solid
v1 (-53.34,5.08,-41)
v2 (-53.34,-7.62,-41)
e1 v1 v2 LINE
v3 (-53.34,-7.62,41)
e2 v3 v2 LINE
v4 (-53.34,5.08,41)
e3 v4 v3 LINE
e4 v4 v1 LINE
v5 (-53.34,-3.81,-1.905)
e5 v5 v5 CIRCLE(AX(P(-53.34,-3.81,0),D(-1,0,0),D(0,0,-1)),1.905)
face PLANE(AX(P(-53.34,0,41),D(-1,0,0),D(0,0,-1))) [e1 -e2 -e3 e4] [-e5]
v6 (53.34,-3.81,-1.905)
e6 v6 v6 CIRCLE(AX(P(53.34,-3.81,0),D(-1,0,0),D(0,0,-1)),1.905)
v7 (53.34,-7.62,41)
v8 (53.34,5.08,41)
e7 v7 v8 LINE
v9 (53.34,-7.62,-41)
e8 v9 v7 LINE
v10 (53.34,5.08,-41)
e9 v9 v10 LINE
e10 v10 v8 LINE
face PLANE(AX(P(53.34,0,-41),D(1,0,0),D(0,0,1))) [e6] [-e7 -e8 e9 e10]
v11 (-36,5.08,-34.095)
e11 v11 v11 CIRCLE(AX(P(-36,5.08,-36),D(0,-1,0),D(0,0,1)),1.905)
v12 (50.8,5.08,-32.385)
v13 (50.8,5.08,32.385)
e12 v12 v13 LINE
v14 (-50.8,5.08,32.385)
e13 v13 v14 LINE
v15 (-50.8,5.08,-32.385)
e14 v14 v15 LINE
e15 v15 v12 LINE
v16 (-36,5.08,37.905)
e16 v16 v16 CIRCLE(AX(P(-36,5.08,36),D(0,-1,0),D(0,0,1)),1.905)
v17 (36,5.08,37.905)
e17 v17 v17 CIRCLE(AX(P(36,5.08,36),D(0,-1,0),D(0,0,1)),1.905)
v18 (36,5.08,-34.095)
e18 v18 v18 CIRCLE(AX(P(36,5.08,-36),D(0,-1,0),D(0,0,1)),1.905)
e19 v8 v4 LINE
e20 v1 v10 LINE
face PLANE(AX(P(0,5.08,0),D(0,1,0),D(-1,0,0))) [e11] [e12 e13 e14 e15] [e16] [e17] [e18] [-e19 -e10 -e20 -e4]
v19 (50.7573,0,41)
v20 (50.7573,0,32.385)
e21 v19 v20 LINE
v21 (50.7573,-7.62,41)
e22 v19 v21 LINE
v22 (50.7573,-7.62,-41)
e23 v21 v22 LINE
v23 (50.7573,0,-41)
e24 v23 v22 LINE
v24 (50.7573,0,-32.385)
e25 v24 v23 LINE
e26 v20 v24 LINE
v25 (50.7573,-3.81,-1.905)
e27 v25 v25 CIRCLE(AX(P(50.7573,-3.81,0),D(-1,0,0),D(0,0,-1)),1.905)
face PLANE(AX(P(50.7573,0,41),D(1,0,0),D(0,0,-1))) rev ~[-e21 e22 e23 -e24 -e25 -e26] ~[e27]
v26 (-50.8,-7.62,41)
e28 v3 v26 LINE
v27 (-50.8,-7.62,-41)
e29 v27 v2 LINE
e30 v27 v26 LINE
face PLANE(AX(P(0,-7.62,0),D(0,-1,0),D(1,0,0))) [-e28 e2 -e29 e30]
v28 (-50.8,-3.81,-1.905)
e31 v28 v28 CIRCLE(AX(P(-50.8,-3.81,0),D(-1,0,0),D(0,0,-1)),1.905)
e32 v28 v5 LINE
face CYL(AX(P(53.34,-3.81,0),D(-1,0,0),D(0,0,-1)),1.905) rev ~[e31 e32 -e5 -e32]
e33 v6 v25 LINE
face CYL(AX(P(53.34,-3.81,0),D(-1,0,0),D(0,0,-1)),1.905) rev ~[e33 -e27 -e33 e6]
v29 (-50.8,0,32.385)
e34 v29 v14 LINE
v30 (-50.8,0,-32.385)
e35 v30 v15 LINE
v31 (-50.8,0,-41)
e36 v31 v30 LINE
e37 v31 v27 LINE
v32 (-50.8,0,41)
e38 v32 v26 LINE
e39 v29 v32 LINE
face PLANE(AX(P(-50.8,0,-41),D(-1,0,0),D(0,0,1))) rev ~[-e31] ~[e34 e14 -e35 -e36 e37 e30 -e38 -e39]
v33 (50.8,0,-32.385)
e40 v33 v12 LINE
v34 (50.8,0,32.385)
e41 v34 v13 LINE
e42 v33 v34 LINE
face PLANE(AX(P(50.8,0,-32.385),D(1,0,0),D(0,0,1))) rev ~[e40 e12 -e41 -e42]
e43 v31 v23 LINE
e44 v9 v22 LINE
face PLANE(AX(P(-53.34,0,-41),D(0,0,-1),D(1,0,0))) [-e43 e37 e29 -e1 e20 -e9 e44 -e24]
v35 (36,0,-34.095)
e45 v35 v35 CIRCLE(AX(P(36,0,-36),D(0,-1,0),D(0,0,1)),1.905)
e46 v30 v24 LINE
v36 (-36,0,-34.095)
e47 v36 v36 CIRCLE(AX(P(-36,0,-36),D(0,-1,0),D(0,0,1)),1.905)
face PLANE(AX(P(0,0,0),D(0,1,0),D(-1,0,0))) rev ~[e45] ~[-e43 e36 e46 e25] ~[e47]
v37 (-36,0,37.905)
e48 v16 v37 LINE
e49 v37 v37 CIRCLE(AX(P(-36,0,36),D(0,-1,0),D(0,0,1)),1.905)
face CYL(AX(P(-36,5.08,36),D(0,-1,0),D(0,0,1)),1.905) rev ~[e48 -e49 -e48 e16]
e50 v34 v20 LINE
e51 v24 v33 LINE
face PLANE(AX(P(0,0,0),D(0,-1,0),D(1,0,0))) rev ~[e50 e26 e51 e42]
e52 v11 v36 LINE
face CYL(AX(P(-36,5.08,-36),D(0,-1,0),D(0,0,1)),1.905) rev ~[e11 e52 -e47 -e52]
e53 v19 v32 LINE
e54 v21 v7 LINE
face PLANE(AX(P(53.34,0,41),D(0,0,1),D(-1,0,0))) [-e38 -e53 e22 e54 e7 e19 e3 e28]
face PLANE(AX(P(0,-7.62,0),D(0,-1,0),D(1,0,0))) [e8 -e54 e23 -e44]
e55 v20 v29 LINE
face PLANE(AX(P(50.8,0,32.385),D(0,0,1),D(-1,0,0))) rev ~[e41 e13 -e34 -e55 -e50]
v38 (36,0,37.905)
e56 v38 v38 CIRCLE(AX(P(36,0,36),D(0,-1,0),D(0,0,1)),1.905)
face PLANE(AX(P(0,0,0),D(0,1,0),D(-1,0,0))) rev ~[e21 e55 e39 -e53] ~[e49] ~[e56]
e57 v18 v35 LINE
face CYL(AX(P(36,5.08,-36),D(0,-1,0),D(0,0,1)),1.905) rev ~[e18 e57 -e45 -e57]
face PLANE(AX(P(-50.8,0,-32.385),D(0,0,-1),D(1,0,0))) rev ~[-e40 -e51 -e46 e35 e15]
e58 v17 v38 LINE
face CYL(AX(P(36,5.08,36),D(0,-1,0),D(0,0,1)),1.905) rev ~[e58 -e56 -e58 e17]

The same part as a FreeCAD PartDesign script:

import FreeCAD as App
import Part
import Sketcher
Q = App.Units.Quantity


def add_polygon(sketch, points):
    """Adds a closed chain of lines whose ends are joined by coincident constraints."""
    first, n = sketch.GeometryCount, len(points)
    for a, b in zip(points, points[1:] + points[:1]):
        sketch.addGeometry(Part.LineSegment(App.Vector(*a, 0), App.Vector(*b, 0)), False)
    for i in range(n):
        sketch.addConstraint(Sketcher.Constraint("Coincident", first + i, 2, first + (i + 1) % n, 1))

doc = App.newDocument("Part")
params = doc.addObject("Spreadsheet::Sheet", "Params")
for row, (alias, value) in enumerate([
    ("sketch1_width", "4 in"),
    ("sketch1_width2", "4.2 in"),
    ("sketch1_height", "2.55 in"),
    ("pad1_length", "0.2 in"),
    ("sketch2_width", "0.1 in"),
    ("pad2_length", "0.3 in"),
    ("sketch3_diameter", "0.15 in"),
    ("hole_diameter", "0.15 in"),
    ("sketch4_diameter", "0.15 in"),
    ("hole2_diameter", "0.15 in"),
], start=1):
    params.set(f"A{row}", alias)
    params.set(f"B{row}", "=" + value)
    params.setAlias(f"B{row}", alias)

body = doc.addObject("PartDesign::Body", "Body")

# Sketch on XZ plane
sketch1 = body.newObject("Sketcher::SketchObject", "Sketch")
sketch1.AttachmentSupport = (doc.getObject("XZ_Plane"), [""])
sketch1.MapMode = "FlatFace"
add_polygon(sketch1, [(-53, 41), (53, 41), (53, -41), (-53, -41)])  # lines 0-3
add_polygon(sketch1, [(51, -32), (51, 32), (-51, 32), (-51, -32)])  # lines 4-7
sketch1.addConstraint([
    Sketcher.Constraint("Horizontal", 0),
    Sketcher.Constraint("Vertical", 1),
    Sketcher.Constraint("Horizontal", 2),
    Sketcher.Constraint("Vertical", 3),
    Sketcher.Constraint("Vertical", 4),
    Sketcher.Constraint("Horizontal", 5),
    Sketcher.Constraint("Vertical", 6),
    Sketcher.Constraint("Horizontal", 7),
    Sketcher.Constraint("Symmetric", 0, 2, 2, 2, -1, 1),
    Sketcher.Constraint("Symmetric", 4, 2, 6, 2, -1, 1),
    Sketcher.Constraint("DistanceX", 5, 2, 5, 1, Q("4 in")),
    Sketcher.Constraint("DistanceX", 0, 1, 0, 2, Q("4.2 in")),
    Sketcher.Constraint("DistanceY", 4, 1, 4, 2, Q("2.55 in")),
    Sketcher.Constraint("DistanceY", 1, 2, 1, 1, Q("82 mm")),
])
sketch1.setExpression("Constraints[18]", "Params.sketch1_width")
sketch1.setExpression("Constraints[19]", "Params.sketch1_width2")
sketch1.setExpression("Constraints[20]", "Params.sketch1_height")
pad1 = body.newObject("PartDesign::Pad", "Pad")
pad1.Profile = sketch1
pad1.setExpression("Length", "Params.pad1_length")
pad1.Reversed = True

# Sketch on XZ plane
sketch2 = body.newObject("Sketcher::SketchObject", "Sketch001")
sketch2.AttachmentSupport = (doc.getObject("XZ_Plane"), [""])
sketch2.MapMode = "FlatFace"
add_polygon(sketch2, [(-50.8, 41), (-53.3, 41), (-53.3, -41), (-50.8, -41)])  # lines 0-3
add_polygon(sketch2, [(53.3, 41), (50.8, 41), (50.8, -41), (53.3, -41)])  # lines 4-7
sketch2.addConstraint([
    Sketcher.Constraint("Horizontal", 0),
    Sketcher.Constraint("Vertical", 1),
    Sketcher.Constraint("Horizontal", 2),
    Sketcher.Constraint("Vertical", 3),
    Sketcher.Constraint("Horizontal", 4),
    Sketcher.Constraint("Vertical", 5),
    Sketcher.Constraint("Horizontal", 6),
    Sketcher.Constraint("Vertical", 7),
    Sketcher.Constraint("Symmetric", 0, 2, 6, 2, -1, 1),
    Sketcher.Constraint("Horizontal", 3, 2, 4, 2),
    Sketcher.Constraint("Horizontal", 2, 2, 5, 2),
    Sketcher.Constraint("DistanceX", 0, 2, 0, 1, Q("0.1 in")),
    Sketcher.Constraint("DistanceX", 2, 2, -1, 1, Q("2 in")),
    Sketcher.Constraint("DistanceX", 4, 2, 4, 1, Q("2.5827 mm")),
    Sketcher.Constraint("DistanceY", 1, 2, 1, 1, Q("82 mm")),
])
sketch2.setExpression("Constraints[19]", "Params.sketch2_width")
pad2 = body.newObject("PartDesign::Pad", "Pad001")
pad2.Profile = sketch2
pad2.setExpression("Length", "Params.pad2_length")

# Sketch on YZ plane
sketch3 = body.newObject("Sketcher::SketchObject", "Sketch002")
sketch3.AttachmentSupport = (doc.getObject("YZ_Plane"), [""])
sketch3.MapMode = "FlatFace"
sketch3.AttachmentOffset = App.Placement(App.Vector(0, 0, 2.1 * 25.4), App.Rotation())
sketch3.addGeometry(Part.Circle(App.Vector(-3.8, 0, 0), App.Vector(0, 0, 1), 1.9), False)
sketch3.addConstraint([
    Sketcher.Constraint("PointOnObject", 0, 3, -1),
    Sketcher.Constraint("Diameter", 0, Q("0.15 in")),
    Sketcher.Constraint("DistanceX", 0, 3, -1, 1, Q("0.15 in")),
])
sketch3.setExpression("Constraints[1]", "Params.sketch3_diameter")
doc.recompute()
hole = body.newObject("PartDesign::Hole", "Hole")
hole.Profile = sketch3
hole.ThreadType = "None"
hole.setExpression("Diameter", "Params.hole_diameter")
hole.DepthType = "ThroughAll"

# Sketch on XZ plane
sketch4 = body.newObject("Sketcher::SketchObject", "Sketch003")
sketch4.AttachmentSupport = (doc.getObject("XZ_Plane"), [""])
sketch4.MapMode = "FlatFace"
sketch4.AttachmentOffset = App.Placement(App.Vector(0, 0, -0.2 * 25.4), App.Rotation())
sketch4.addGeometry([
    Part.Circle(App.Vector(-36, 36, 0), App.Vector(0, 0, 1), 1.9),
    Part.Circle(App.Vector(-36, -36, 0), App.Vector(0, 0, 1), 1.9),
    Part.Circle(App.Vector(36, -36, 0), App.Vector(0, 0, 1), 1.9),
    Part.Circle(App.Vector(36, 36, 0), App.Vector(0, 0, 1), 1.9),
], False)
sketch4.addConstraint([
    Sketcher.Constraint("Equal", 0, 1),
    Sketcher.Constraint("Equal", 1, 2),
    Sketcher.Constraint("Equal", 2, 3),
    Sketcher.Constraint("Symmetric", 0, 3, 2, 3, -1, 1),
    Sketcher.Constraint("Symmetric", 1, 3, 3, 3, -1, 1),
    Sketcher.Constraint("Symmetric", 1, 3, 2, 3, -2),
    Sketcher.Constraint("Diameter", 0, Q("0.15 in")),
    Sketcher.Constraint("DistanceX", 0, 3, -1, 1, Q("36 mm")),
    Sketcher.Constraint("DistanceY", -1, 1, 0, 3, Q("36 mm")),
])
sketch4.setExpression("Constraints[6]", "Params.sketch4_diameter")
doc.recompute()
hole2 = body.newObject("PartDesign::Hole", "Hole001")
hole2.Profile = sketch4
hole2.ThreadType = "None"
hole2.setExpression("Diameter", "Params.hole2_diameter")
hole2.DepthType = "ThroughAll"
hole2.Reversed = True

doc.recompute()
